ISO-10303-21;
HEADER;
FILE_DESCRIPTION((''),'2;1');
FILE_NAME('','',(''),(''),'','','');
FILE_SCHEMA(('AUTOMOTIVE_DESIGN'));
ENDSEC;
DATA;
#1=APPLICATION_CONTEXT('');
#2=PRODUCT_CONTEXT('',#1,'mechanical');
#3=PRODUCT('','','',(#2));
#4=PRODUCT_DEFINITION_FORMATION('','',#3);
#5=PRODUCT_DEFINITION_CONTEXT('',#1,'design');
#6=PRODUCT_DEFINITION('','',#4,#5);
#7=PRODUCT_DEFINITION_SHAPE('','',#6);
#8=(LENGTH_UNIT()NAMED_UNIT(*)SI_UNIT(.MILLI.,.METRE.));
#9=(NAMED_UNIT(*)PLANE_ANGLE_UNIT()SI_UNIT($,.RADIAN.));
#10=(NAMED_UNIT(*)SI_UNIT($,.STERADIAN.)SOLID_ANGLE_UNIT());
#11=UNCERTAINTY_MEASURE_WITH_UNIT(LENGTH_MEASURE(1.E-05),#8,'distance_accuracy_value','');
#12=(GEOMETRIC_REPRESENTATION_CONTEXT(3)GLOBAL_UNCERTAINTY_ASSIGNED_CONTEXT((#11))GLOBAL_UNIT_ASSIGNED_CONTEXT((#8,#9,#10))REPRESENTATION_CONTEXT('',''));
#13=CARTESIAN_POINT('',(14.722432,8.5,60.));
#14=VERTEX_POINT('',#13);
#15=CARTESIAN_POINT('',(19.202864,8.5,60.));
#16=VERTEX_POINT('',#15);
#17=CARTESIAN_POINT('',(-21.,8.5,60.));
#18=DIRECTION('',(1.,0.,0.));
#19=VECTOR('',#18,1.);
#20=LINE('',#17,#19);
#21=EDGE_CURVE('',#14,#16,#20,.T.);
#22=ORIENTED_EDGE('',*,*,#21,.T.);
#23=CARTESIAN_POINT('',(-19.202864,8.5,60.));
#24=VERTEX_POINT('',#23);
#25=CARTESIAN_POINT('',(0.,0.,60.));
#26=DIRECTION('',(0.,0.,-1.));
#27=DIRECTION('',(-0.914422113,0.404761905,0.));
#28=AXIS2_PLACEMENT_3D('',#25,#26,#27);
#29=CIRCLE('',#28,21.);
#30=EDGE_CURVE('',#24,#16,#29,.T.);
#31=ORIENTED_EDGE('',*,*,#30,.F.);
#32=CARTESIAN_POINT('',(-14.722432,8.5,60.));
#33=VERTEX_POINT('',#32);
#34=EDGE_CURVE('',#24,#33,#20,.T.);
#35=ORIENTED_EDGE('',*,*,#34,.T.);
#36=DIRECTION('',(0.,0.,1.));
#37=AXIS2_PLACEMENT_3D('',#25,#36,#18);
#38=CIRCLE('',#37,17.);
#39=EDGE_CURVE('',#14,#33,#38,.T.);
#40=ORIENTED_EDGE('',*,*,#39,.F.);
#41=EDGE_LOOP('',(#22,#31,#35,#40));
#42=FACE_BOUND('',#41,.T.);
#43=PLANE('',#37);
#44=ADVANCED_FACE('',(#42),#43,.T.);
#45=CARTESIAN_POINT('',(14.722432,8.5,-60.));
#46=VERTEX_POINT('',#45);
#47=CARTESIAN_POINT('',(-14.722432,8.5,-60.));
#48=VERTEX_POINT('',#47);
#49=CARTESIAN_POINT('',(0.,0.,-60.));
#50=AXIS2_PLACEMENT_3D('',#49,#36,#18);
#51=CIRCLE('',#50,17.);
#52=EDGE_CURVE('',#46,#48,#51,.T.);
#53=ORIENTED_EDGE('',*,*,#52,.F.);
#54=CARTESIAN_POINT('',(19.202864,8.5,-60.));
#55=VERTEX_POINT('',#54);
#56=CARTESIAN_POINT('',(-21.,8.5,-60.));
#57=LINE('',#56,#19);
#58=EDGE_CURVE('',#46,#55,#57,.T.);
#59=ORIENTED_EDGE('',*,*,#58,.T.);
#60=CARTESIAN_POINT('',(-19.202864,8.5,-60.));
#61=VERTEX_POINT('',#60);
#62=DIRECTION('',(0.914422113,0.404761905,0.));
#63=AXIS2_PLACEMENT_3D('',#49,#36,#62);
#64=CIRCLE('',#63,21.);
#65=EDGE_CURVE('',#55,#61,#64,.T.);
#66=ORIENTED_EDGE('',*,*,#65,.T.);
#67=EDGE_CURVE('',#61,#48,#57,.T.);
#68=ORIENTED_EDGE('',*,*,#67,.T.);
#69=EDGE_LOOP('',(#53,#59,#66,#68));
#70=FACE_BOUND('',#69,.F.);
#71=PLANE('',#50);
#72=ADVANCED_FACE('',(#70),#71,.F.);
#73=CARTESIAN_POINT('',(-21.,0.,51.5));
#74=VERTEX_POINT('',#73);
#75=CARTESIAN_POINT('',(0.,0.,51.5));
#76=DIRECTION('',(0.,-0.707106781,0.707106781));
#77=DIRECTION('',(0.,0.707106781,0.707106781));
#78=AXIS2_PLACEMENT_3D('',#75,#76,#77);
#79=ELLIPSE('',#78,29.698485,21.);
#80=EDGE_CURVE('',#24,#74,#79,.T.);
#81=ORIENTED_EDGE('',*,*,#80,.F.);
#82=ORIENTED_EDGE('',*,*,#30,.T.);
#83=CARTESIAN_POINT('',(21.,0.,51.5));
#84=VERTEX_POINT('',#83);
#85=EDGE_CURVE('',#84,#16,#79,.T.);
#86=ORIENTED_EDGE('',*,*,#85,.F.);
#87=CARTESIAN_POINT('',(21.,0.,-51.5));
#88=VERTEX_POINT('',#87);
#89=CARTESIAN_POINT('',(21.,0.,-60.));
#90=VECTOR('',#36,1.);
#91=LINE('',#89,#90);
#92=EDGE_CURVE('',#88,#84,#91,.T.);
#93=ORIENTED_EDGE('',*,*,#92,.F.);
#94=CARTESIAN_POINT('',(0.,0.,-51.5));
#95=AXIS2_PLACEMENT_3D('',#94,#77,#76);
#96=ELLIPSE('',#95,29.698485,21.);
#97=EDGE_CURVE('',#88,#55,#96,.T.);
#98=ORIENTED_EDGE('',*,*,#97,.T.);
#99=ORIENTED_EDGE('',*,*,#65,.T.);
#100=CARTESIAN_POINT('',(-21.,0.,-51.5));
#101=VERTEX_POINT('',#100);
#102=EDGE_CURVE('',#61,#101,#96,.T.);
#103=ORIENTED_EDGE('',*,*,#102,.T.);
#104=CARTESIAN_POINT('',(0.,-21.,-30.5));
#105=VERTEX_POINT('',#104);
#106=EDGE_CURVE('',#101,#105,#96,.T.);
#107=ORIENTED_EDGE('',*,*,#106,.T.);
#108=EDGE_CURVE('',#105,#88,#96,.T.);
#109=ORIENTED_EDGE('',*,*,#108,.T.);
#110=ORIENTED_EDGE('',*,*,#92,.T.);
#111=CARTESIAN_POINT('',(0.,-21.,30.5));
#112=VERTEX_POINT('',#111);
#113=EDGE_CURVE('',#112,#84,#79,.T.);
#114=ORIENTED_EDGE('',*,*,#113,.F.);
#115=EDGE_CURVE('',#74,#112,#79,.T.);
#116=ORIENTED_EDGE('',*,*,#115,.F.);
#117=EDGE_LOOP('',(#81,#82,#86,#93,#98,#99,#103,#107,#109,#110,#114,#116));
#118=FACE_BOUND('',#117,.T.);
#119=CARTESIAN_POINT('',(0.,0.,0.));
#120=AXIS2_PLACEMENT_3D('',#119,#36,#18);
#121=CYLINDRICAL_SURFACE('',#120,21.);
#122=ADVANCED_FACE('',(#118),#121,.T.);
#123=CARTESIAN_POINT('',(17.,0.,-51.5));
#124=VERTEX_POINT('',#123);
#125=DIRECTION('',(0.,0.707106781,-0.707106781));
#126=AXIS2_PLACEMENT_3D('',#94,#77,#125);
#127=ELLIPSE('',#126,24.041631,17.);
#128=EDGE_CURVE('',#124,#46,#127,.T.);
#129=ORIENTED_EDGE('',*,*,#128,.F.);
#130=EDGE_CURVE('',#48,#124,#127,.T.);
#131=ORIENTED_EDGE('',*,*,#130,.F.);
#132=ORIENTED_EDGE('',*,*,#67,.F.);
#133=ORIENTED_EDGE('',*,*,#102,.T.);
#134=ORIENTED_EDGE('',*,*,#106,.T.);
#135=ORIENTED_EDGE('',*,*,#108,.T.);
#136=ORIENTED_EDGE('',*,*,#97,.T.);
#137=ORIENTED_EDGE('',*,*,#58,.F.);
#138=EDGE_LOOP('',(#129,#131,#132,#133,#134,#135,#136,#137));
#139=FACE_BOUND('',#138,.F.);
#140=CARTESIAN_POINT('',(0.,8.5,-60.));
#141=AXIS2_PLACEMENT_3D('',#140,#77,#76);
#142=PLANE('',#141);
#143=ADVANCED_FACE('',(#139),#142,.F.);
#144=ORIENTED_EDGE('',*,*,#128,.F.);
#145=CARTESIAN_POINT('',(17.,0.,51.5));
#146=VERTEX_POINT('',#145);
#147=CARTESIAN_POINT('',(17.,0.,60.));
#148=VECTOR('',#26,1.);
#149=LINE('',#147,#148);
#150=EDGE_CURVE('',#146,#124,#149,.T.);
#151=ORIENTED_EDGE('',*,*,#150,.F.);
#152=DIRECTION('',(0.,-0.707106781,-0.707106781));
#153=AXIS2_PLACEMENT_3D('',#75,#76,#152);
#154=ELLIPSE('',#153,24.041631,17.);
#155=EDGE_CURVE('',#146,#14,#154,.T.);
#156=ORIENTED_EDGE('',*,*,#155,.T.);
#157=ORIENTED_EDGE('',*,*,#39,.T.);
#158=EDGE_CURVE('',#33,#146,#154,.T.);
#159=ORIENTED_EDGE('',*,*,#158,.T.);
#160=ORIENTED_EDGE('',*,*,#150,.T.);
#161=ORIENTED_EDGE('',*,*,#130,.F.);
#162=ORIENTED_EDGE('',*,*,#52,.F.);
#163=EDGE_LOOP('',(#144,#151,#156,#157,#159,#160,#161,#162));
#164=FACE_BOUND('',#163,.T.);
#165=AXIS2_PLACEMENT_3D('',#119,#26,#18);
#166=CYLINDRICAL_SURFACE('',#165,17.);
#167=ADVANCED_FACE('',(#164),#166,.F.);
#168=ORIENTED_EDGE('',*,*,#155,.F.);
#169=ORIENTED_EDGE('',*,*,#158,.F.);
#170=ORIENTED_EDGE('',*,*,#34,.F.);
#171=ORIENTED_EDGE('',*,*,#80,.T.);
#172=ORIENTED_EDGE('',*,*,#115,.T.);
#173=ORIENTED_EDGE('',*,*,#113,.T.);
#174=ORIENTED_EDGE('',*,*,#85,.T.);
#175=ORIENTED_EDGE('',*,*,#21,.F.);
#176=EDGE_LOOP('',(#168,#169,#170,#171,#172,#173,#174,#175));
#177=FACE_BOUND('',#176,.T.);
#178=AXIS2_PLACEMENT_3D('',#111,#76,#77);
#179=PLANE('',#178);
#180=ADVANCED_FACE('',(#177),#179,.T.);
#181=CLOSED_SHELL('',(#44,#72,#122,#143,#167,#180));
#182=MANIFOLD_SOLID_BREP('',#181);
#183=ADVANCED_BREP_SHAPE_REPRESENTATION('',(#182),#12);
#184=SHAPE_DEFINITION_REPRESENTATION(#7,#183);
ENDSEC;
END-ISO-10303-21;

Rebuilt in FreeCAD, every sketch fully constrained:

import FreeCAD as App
import Part
import Sketcher
Q = App.Units.Quantity

doc = App.newDocument("Part")
body = doc.addObject("PartDesign::Body", "Body")

sketch1 = body.newObject("Sketcher::SketchObject", "Sketch")
sketch1.AttachmentSupport = (doc.getObject("XY_Plane"), [""])
sketch1.MapMode = "FlatFace"
sketch1.addGeometry(Part.Circle(App.Vector(0, 0, 0), App.Vector(0, 0, 1), 21), False)
sketch1.addGeometry(Part.Circle(App.Vector(0, 0, 0), App.Vector(0, 0, 1), 17), False)
sketch1.addConstraint(Sketcher.Constraint("Coincident", 0, 3, -1, 1))
sketch1.addConstraint(Sketcher.Constraint("Coincident", 1, 3, -1, 1))
sketch1.addConstraint(Sketcher.Constraint("Diameter", 0, Q("42 mm")))
sketch1.addConstraint(Sketcher.Constraint("Diameter", 1, Q("34 mm")))
pad1 = body.newObject("PartDesign::Pad", "Pad")
pad1.Profile = sketch1
pad1.Length = 120
pad1.Midplane = True

sketch2 = body.newObject("Sketcher::SketchObject", "Sketch001")
sketch2.AttachmentSupport = (doc.getObject("YZ_Plane"), [""])
sketch2.MapMode = "FlatFace"
sketch2.addGeometry(Part.LineSegment(App.Vector(-21, 30.5, 0), App.Vector(8.5, 60, 0)), False)
sketch2.addGeometry(Part.LineSegment(App.Vector(8.5, 60, 0), App.Vector(21, 60, 0)), False)
sketch2.addGeometry(Part.LineSegment(App.Vector(21, 60, 0), App.Vector(21, 70, 0)), False)
sketch2.addGeometry(Part.LineSegment(App.Vector(21, 70, 0), App.Vector(-21, 70, 0)), False)
sketch2.addGeometry(Part.LineSegment(App.Vector(-21, 70, 0), App.Vector(-21, 30.5, 0)), False)
sketch2.addGeometry(Part.LineSegment(App.Vector(21, -60, 0), App.Vector(8.5, -60, 0)), False)
sketch2.addGeometry(Part.LineSegment(App.Vector(8.5, -60, 0), App.Vector(-21, -30.5, 0)), False)
sketch2.addGeometry(Part.LineSegment(App.Vector(-21, -30.5, 0), App.Vector(-21, -70, 0)), False)
sketch2.addGeometry(Part.LineSegment(App.Vector(-21, -70, 0), App.Vector(21, -70, 0)), False)
sketch2.addGeometry(Part.LineSegment(App.Vector(21, -70, 0), App.Vector(21, -60, 0)), False)
sketch2.addConstraint(Sketcher.Constraint("Coincident", 0, 2, 1, 1))
sketch2.addConstraint(Sketcher.Constraint("Coincident", 1, 2, 2, 1))
sketch2.addConstraint(Sketcher.Constraint("Coincident", 2, 2, 3, 1))
sketch2.addConstraint(Sketcher.Constraint("Coincident", 3, 2, 4, 1))
sketch2.addConstraint(Sketcher.Constraint("Coincident", 4, 2, 0, 1))
sketch2.addConstraint(Sketcher.Constraint("Coincident", 5, 2, 6, 1))
sketch2.addConstraint(Sketcher.Constraint("Coincident", 6, 2, 7, 1))
sketch2.addConstraint(Sketcher.Constraint("Coincident", 7, 2, 8, 1))
sketch2.addConstraint(Sketcher.Constraint("Coincident", 8, 2, 9, 1))
sketch2.addConstraint(Sketcher.Constraint("Coincident", 9, 2, 5, 1))
sketch2.addConstraint(Sketcher.Constraint("Horizontal", 1))
sketch2.addConstraint(Sketcher.Constraint("Vertical", 2))
sketch2.addConstraint(Sketcher.Constraint("Horizontal", 3))
sketch2.addConstraint(Sketcher.Constraint("Vertical", 4))
sketch2.addConstraint(Sketcher.Constraint("Horizontal", 5))
sketch2.addConstraint(Sketcher.Constraint("Vertical", 7))
sketch2.addConstraint(Sketcher.Constraint("Horizontal", 8))
sketch2.addConstraint(Sketcher.Constraint("Vertical", 9))
sketch2.addConstraint(Sketcher.Constraint("Symmetric", 2, 2, 7, 2, -1, 1))
sketch2.addConstraint(Sketcher.Constraint("Symmetric", 0, 2, 5, 2, -1))
sketch2.addConstraint(Sketcher.Constraint("Symmetric", 4, 2, 6, 2, -1))
sketch2.addConstraint(Sketcher.Constraint("Perpendicular", 0, 6))
sketch2.addConstraint(Sketcher.Constraint("Vertical", 2, 2, 8, 2))
sketch2.addConstraint(Sketcher.Constraint("DistanceX", 3, 2, 3, 1, Q("42 mm")))
sketch2.addConstraint(Sketcher.Constraint("DistanceY", 2, 1, 2, 2, Q("10 mm")))
sketch2.addConstraint(Sketcher.Constraint("DistanceX", 1, 1, 1, 2, Q("12.5 mm")))
sketch2.addConstraint(Sketcher.Constraint("DistanceY", -1, 1, 0, 2, Q("60 mm")))
pocket1 = body.newObject("PartDesign::Pocket", "Pocket")
pocket1.Profile = sketch2
pocket1.Length = 42
pocket1.Midplane = True

doc.recompute()
